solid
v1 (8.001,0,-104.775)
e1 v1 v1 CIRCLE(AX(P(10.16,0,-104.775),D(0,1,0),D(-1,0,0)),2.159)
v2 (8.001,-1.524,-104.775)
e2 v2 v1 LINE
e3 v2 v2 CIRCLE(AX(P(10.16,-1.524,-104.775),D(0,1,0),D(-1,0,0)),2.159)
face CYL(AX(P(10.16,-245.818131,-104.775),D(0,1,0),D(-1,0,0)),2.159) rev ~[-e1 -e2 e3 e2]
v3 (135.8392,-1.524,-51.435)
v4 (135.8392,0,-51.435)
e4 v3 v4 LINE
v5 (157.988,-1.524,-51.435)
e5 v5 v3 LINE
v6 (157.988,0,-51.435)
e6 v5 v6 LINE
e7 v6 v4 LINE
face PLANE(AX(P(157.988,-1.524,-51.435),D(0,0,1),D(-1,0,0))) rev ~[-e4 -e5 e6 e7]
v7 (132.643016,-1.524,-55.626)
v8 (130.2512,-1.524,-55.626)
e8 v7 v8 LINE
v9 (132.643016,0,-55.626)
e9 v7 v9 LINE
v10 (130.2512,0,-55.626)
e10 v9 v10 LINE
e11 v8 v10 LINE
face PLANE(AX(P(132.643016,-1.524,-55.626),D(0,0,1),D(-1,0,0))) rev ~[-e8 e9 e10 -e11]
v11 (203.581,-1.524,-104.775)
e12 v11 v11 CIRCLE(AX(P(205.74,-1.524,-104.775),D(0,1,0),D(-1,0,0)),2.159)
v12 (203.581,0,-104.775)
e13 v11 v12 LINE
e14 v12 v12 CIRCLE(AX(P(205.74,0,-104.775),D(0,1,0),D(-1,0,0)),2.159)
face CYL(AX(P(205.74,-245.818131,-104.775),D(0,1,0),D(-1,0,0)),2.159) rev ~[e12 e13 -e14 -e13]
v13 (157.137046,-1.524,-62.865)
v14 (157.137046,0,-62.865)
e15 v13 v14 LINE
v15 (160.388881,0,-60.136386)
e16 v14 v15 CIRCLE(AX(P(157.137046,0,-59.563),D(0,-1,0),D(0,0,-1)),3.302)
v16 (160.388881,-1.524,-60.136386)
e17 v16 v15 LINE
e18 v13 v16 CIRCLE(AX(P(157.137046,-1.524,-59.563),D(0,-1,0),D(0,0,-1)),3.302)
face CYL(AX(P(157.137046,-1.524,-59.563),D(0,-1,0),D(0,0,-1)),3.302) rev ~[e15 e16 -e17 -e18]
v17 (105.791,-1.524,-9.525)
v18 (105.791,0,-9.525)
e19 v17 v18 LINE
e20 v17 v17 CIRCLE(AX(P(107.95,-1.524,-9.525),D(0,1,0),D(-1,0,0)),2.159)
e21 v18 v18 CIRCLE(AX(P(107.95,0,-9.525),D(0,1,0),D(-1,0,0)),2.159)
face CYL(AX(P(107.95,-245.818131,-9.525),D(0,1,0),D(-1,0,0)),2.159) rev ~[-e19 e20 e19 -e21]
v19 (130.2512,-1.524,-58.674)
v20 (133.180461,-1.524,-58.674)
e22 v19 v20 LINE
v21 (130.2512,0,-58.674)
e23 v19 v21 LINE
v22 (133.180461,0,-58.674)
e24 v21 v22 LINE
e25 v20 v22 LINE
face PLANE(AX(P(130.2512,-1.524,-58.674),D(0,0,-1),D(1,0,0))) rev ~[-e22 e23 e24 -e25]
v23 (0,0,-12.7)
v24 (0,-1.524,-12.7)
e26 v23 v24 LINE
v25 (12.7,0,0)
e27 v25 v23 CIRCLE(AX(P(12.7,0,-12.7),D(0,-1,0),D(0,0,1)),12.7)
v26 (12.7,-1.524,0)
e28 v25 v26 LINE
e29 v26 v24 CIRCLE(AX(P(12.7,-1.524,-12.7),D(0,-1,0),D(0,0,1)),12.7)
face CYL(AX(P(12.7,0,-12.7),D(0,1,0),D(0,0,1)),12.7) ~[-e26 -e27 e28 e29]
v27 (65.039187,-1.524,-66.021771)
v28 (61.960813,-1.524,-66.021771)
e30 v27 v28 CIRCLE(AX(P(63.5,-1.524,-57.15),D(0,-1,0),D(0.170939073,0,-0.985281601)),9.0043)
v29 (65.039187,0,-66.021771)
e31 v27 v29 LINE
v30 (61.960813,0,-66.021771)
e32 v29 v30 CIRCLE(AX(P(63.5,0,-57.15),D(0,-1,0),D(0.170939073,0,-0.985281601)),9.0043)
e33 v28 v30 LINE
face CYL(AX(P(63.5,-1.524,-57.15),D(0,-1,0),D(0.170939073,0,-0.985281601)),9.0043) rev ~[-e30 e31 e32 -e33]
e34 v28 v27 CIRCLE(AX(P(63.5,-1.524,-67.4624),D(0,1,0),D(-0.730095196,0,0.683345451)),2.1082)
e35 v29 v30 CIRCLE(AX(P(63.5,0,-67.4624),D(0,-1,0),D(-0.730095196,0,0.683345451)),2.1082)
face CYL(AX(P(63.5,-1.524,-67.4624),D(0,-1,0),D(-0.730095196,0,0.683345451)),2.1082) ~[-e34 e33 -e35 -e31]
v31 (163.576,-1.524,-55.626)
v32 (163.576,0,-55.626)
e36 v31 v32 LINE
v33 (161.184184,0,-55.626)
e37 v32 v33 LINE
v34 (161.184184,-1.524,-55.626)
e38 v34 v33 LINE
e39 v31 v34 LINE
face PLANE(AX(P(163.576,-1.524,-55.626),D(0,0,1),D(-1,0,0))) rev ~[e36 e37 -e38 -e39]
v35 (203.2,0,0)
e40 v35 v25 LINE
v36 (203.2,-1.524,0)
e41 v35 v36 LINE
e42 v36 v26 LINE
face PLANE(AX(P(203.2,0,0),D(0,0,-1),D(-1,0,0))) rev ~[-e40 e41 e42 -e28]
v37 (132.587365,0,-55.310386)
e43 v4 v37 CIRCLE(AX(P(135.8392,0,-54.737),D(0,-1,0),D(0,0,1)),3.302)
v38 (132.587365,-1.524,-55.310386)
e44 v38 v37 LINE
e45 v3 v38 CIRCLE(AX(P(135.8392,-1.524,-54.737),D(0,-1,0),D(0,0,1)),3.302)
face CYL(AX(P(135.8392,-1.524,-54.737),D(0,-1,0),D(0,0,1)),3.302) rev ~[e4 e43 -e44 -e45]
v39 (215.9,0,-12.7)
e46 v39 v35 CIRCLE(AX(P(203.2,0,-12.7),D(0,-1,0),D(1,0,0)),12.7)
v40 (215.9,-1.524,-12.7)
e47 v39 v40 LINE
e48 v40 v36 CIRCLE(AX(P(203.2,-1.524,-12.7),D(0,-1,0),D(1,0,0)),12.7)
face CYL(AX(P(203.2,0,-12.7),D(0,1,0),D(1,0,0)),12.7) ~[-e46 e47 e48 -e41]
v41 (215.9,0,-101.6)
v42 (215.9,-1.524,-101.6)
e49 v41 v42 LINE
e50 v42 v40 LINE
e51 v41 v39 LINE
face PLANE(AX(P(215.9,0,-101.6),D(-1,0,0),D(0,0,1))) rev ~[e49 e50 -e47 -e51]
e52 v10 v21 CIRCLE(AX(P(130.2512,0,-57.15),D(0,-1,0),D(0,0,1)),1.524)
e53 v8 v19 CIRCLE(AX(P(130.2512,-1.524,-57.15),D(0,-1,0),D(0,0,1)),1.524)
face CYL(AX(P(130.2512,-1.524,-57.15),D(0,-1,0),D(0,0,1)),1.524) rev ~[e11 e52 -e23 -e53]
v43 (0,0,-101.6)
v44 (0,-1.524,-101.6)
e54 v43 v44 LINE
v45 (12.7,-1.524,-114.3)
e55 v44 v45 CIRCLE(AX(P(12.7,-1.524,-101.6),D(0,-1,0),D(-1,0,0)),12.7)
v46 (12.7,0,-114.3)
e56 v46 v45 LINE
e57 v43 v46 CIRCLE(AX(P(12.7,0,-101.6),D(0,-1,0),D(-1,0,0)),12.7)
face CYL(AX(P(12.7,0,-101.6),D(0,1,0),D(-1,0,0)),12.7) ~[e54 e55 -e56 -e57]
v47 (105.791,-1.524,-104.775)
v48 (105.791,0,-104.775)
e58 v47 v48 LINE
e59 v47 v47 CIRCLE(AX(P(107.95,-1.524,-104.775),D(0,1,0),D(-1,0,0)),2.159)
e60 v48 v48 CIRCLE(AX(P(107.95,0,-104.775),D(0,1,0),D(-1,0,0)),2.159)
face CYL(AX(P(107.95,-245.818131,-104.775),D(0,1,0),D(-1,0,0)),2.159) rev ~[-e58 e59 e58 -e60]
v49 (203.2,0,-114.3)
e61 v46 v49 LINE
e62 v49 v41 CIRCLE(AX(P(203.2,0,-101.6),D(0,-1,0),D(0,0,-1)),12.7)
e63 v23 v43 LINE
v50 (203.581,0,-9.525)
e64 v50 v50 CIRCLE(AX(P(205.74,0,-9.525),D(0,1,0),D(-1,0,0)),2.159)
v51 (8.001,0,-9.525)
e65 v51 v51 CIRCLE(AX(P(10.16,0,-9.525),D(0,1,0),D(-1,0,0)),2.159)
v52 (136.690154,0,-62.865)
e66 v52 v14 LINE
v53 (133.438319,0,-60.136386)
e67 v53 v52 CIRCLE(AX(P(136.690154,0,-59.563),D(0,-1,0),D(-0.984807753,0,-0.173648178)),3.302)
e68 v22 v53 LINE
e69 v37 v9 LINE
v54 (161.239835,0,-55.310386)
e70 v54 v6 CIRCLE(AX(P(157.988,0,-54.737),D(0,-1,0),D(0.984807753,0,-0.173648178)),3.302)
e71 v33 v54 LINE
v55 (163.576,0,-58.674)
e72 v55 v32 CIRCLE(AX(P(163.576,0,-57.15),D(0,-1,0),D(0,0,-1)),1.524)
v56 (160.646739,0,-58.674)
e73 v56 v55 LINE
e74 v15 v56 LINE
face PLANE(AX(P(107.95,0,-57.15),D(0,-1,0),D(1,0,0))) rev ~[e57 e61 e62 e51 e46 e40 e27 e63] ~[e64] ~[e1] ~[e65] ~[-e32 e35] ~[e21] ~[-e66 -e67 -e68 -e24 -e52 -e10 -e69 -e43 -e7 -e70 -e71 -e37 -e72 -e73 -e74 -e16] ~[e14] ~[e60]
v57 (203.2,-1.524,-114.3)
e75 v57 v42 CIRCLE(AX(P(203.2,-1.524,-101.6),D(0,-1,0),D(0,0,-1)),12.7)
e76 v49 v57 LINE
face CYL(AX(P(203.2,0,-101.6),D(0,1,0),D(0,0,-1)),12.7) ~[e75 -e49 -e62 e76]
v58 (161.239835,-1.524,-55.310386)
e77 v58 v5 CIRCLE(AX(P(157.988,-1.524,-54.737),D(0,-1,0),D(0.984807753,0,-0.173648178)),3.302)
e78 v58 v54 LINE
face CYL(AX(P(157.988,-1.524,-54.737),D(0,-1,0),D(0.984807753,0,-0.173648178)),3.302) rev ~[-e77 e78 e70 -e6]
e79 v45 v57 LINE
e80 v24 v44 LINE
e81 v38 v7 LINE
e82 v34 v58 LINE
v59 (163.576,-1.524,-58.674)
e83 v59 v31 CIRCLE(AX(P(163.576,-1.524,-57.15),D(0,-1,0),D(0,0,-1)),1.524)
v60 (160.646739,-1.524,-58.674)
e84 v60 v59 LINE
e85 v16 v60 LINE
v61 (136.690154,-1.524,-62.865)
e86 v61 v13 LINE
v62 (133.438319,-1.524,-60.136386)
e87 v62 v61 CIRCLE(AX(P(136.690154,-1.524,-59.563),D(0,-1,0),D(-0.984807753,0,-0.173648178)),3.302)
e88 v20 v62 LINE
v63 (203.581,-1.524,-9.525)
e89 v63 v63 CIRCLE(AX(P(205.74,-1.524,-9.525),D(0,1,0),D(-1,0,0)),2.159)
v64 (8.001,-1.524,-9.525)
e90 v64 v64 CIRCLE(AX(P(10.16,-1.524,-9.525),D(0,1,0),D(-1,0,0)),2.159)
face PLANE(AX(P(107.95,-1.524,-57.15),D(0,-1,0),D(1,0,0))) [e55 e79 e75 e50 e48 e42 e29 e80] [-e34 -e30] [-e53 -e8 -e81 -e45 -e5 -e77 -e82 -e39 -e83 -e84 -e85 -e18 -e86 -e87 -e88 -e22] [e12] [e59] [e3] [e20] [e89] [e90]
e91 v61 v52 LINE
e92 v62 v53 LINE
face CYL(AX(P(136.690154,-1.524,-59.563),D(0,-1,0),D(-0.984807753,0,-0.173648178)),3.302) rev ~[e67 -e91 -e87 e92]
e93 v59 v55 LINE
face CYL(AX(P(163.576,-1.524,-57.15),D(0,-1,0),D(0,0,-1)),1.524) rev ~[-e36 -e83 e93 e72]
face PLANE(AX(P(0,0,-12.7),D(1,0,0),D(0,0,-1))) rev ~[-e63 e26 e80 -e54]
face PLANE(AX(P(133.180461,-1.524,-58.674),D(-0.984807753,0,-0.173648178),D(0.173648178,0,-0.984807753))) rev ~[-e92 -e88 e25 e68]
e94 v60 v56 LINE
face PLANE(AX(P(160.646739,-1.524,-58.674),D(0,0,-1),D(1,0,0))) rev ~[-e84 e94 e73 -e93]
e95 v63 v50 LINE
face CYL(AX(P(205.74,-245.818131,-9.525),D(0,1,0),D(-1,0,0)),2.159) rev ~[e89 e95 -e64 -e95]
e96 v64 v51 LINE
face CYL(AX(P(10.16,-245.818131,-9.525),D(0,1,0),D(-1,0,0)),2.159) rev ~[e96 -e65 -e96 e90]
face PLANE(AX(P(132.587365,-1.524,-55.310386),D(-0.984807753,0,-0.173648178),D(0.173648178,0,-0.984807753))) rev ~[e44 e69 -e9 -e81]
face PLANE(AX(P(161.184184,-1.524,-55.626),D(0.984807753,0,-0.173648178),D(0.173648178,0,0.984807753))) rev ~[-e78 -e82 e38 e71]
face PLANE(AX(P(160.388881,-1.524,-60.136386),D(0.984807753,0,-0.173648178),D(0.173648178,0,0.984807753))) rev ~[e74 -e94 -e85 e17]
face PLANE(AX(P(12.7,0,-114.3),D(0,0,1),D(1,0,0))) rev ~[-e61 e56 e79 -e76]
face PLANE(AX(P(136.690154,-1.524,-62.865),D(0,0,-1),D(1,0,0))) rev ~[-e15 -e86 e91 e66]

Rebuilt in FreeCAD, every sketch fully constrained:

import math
import FreeCAD as App
import Part
import Sketcher

V = App.Vector
Q = App.Units.Quantity

doc = App.newDocument("Part")
body = doc.addObject("PartDesign::Body", "Body")

# Sketch on XZ plane
sketch1 = doc.addObject("Sketcher::SketchObject", "Sketch")
body.addObject(sketch1)
sketch1.AttachmentSupport = (doc.XZ_Plane, [""])
sketch1.MapMode = "FlatFace"
sketch1.addGeometry(Part.LineSegment(V(203.2, 0, 0), V(12.7, 0, 0)), False)
sketch1.addGeometry(Part.ArcOfCircle(Part.Circle(V(12.7, -12.7, 0), V(0, 0, 1), 12.7), math.radians(90), math.radians(180)), False)
sketch1.addGeometry(Part.LineSegment(V(0, -12.7, 0), V(0, -101.6, 0)), False)
sketch1.addGeometry(Part.ArcOfCircle(Part.Circle(V(12.7, -101.6, 0), V(0, 0, 1), 12.7), math.radians(180), math.radians(270)), False)
sketch1.addGeometry(Part.LineSegment(V(12.7, -114.3, 0), V(203.2, -114.3, 0)), False)
sketch1.addGeometry(Part.ArcOfCircle(Part.Circle(V(203.2, -101.6, 0), V(0, 0, 1), 12.7), math.radians(-90), math.radians(0)), False)
sketch1.addGeometry(Part.LineSegment(V(215.9, -101.6, 0), V(215.9, -12.7, 0)), False)
sketch1.addGeometry(Part.ArcOfCircle(Part.Circle(V(203.2, -12.7, 0), V(0, 0, 1), 12.7), math.radians(0), math.radians(90)), False)
sketch1.addConstraint(Sketcher.Constraint("Tangent", 0, 2, 1, 1))
sketch1.addConstraint(Sketcher.Constraint("Tangent", 1, 2, 2, 1))
sketch1.addConstraint(Sketcher.Constraint("Tangent", 2, 2, 3, 1))
sketch1.addConstraint(Sketcher.Constraint("Tangent", 3, 2, 4, 1))
sketch1.addConstraint(Sketcher.Constraint("Tangent", 4, 2, 5, 1))
sketch1.addConstraint(Sketcher.Constraint("Tangent", 5, 2, 6, 1))
sketch1.addConstraint(Sketcher.Constraint("Tangent", 6, 2, 7, 1))
sketch1.addConstraint(Sketcher.Constraint("Tangent", 7, 2, 0, 1))
sketch1.addConstraint(Sketcher.Constraint("Horizontal", 0))
sketch1.addConstraint(Sketcher.Constraint("Vertical", 2))
sketch1.addConstraint(Sketcher.Constraint("Horizontal", 4))
sketch1.addConstraint(Sketcher.Constraint("Vertical", 6))
sketch1.addConstraint(Sketcher.Constraint("Equal", 1, 3))
sketch1.addConstraint(Sketcher.Constraint("Equal", 3, 5))
sketch1.addConstraint(Sketcher.Constraint("Equal", 5, 7))
sketch1.addConstraint(Sketcher.Constraint("PointOnObject", 0, 2, -1))
sketch1.addConstraint(Sketcher.Constraint("PointOnObject", 1, 2, -2))
sketch1.addConstraint(Sketcher.Constraint("Radius", 1, Q("0.5 in")))
sketch1.addConstraint(Sketcher.Constraint("DistanceX", 0, 2, 0, 1, Q("7.5 in")))
sketch1.addConstraint(Sketcher.Constraint("DistanceY", 2, 2, 2, 1, Q("3.5 in")))
pad1 = doc.addObject("PartDesign::Pad", "Pad")
body.addObject(pad1)
pad1.Profile = sketch1
pad1.Length = Q("0.06 in")

# Sketch on XZ plane
sketch2 = doc.addObject("Sketcher::SketchObject", "Sketch001")
body.addObject(sketch2)
sketch2.AttachmentSupport = (doc.XZ_Plane, [""])
sketch2.MapMode = "FlatFace"
sketch2.AttachmentOffset = App.Placement(V(0, 0, 0.06 * 25.4), App.Rotation())
sketch2.addGeometry(Part.ArcOfCircle(Part.Circle(V(63.5, -67.4624, 0), V(0, 0, 1), 2.1082), math.radians(43.105625), math.radians(136.894375)), False)
sketch2.addGeometry(Part.ArcOfCircle(Part.Circle(V(63.5, -57.15, 0), V(0, 0, 1), 9.0043), math.radians(-80.157577), math.radians(260.157577)), False)
sketch2.addGeometry(Part.ArcOfCircle(Part.Circle(V(157.137046, -59.563, 0), V(0, 0, 1), 3.302), math.radians(-90), math.radians(-10)), False)
sketch2.addGeometry(Part.LineSegment(V(160.388881, -60.136386, 0), V(160.646739, -58.674, 0)), False)
sketch2.addGeometry(Part.LineSegment(V(160.646739, -58.674, 0), V(163.576, -58.674, 0)), False)
sketch2.addGeometry(Part.ArcOfCircle(Part.Circle(V(163.576, -57.15, 0), V(0, 0, 1), 1.524), math.radians(-90), math.radians(90)), False)
sketch2.addGeometry(Part.LineSegment(V(163.576, -55.626, 0), V(161.184184, -55.626, 0)), False)
sketch2.addGeometry(Part.LineSegment(V(161.184184, -55.626, 0), V(161.239835, -55.310386, 0)), False)
sketch2.addGeometry(Part.ArcOfCircle(Part.Circle(V(157.988, -54.737, 0), V(0, 0, 1), 3.302), math.radians(-10), math.radians(90)), False)
sketch2.addGeometry(Part.LineSegment(V(157.988, -51.435, 0), V(135.8392, -51.435, 0)), False)
sketch2.addGeometry(Part.ArcOfCircle(Part.Circle(V(135.8392, -54.737, 0), V(0, 0, 1), 3.302), math.radians(90), math.radians(190)), False)
sketch2.addGeometry(Part.LineSegment(V(132.587365, -55.310386, 0), V(132.643016, -55.626, 0)), False)
sketch2.addGeometry(Part.LineSegment(V(132.643016, -55.626, 0), V(130.2512, -55.626, 0)), False)
sketch2.addGeometry(Part.ArcOfCircle(Part.Circle(V(130.2512, -57.15, 0), V(0, 0, 1), 1.524), math.radians(90), math.radians(270)), False)
sketch2.addGeometry(Part.LineSegment(V(130.2512, -58.674, 0), V(133.180461, -58.674, 0)), False)
sketch2.addGeometry(Part.LineSegment(V(133.180461, -58.674, 0), V(133.438319, -60.136386, 0)), False)
sketch2.addGeometry(Part.ArcOfCircle(Part.Circle(V(136.690154, -59.563, 0), V(0, 0, 1), 3.302), math.radians(-170), math.radians(-90)), False)
sketch2.addGeometry(Part.LineSegment(V(136.690154, -62.865, 0), V(157.137046, -62.865, 0)), False)
sketch2.addConstraint(Sketcher.Constraint("Coincident", 0, 1, 1, 1))
sketch2.addConstraint(Sketcher.Constraint("Coincident", 1, 2, 0, 2))
sketch2.addConstraint(Sketcher.Constraint("Tangent", 2, 2, 3, 1))
sketch2.addConstraint(Sketcher.Constraint("Coincident", 3, 2, 4, 1))
sketch2.addConstraint(Sketcher.Constraint("Tangent", 4, 2, 5, 1))
sketch2.addConstraint(Sketcher.Constraint("Tangent", 5, 2, 6, 1))
sketch2.addConstraint(Sketcher.Constraint("Coincident", 6, 2, 7, 1))
sketch2.addConstraint(Sketcher.Constraint("Tangent", 7, 2, 8, 1))
sketch2.addConstraint(Sketcher.Constraint("Tangent", 8, 2, 9, 1))
sketch2.addConstraint(Sketcher.Constraint("Tangent", 9, 2, 10, 1))
sketch2.addConstraint(Sketcher.Constraint("Tangent", 10, 2, 11, 1))
sketch2.addConstraint(Sketcher.Constraint("Coincident", 11, 2, 12, 1))
sketch2.addConstraint(Sketcher.Constraint("Tangent", 12, 2, 13, 1))
sketch2.addConstraint(Sketcher.Constraint("Tangent", 13, 2, 14, 1))
sketch2.addConstraint(Sketcher.Constraint("Coincident", 14, 2, 15, 1))
sketch2.addConstraint(Sketcher.Constraint("Tangent", 15, 2, 16, 1))
sketch2.addConstraint(Sketcher.Constraint("Tangent", 16, 2, 17, 1))
sketch2.addConstraint(Sketcher.Constraint("Tangent", 17, 2, 2, 1))
sketch2.addConstraint(Sketcher.Constraint("Horizontal", 4))
sketch2.addConstraint(Sketcher.Constraint("Horizontal", 6))
sketch2.addConstraint(Sketcher.Constraint("Horizontal", 9))
sketch2.addConstraint(Sketcher.Constraint("Horizontal", 12))
sketch2.addConstraint(Sketcher.Constraint("Horizontal", 14))
sketch2.addConstraint(Sketcher.Constraint("Horizontal", 17))
sketch2.addConstraint(Sketcher.Constraint("Equal", 2, 8))
sketch2.addConstraint(Sketcher.Constraint("Equal", 8, 10))
sketch2.addConstraint(Sketcher.Constraint("Equal", 5, 13))
sketch2.addConstraint(Sketcher.Constraint("Equal", 10, 16))
sketch2.addConstraint(Sketcher.Constraint("Parallel", 3, 7))
sketch2.addConstraint(Sketcher.Constraint("Parallel", 11, 15))
sketch2.addConstraint(Sketcher.Constraint("Horizontal", 1, 3, 5, 3))
sketch2.addConstraint(Sketcher.Constraint("Horizontal", 5, 3, 13, 3))
sketch2.addConstraint(Sketcher.Constraint("Horizontal", 0, 1, 1, 2))
sketch2.addConstraint(Sketcher.Constraint("Horizontal", 7, 2, 10, 2))
sketch2.addConstraint(Sketcher.Constraint("Equal", 6, 12))
sketch2.addConstraint(Sketcher.Constraint("Equal", 4, 14))
sketch2.addConstraint(Sketcher.Constraint("Radius", 2, Q("0.13 in")))
sketch2.addConstraint(Sketcher.Constraint("Radius", 5, Q("0.06 in")))
sketch2.addConstraint(Sketcher.Constraint("Angle", 3, Q("80 deg")))
sketch2.addConstraint(Sketcher.Constraint("Radius", 0, Q("0.083 in")))
sketch2.addConstraint(Sketcher.Constraint("DistanceX", -1, 1, 0, 3, Q("2.5 in")))
sketch2.addConstraint(Sketcher.Constraint("Radius", 1, Q("0.3545 in")))
sketch2.addConstraint(Sketcher.Constraint("DistanceX", 9, 2, 9, 1, Q("0.872 in")))
sketch2.addConstraint(Sketcher.Constraint("DistanceY", 1, 3, -1, 1, Q("2.25 in")))
sketch2.addConstraint(Sketcher.Constraint("DistanceX", -1, 1, 5, 3, Q("6.44 in")))
sketch2.addConstraint(Sketcher.Constraint("DistanceX", -1, 1, 8, 3, Q("6.22 in")))
sketch2.addConstraint(Sketcher.Constraint("DistanceY", 2, 3, 8, 3, Q("0.19 in")))
sketch2.addConstraint(Sketcher.Constraint("DistanceY", 0, 3, -1, 1, Q("2.656 in")))
sketch2.addConstraint(Sketcher.Constraint("DistanceY", 2, 3, -1, 1, Q("2.345 in")))
sketch2.addConstraint(Sketcher.Constraint("DistanceX", 4, 1, 4, 2, Q("2.929261 mm")))
pocket1 = doc.addObject("PartDesign::Pocket", "Pocket")
body.addObject(pocket1)
pocket1.Profile = sketch2
pocket1.Type = "ThroughAll"

# Sketch on XZ plane
sketch3 = doc.addObject("Sketcher::SketchObject", "Sketch002")
body.addObject(sketch3)
sketch3.AttachmentSupport = (doc.XZ_Plane, [""])
sketch3.MapMode = "FlatFace"
sketch3.AttachmentOffset = App.Placement(V(0, 0, 0.06 * 25.4), App.Rotation())
sketch3.addGeometry(Part.Circle(V(10.16, -9.525, 0), V(0, 0, 1), 2.159), False)
sketch3.addGeometry(Part.Circle(V(107.95, -9.525, 0), V(0, 0, 1), 2.159), False)
sketch3.addGeometry(Part.Circle(V(205.74, -9.525, 0), V(0, 0, 1), 2.159), False)
sketch3.addGeometry(Part.Circle(V(205.74, -104.775, 0), V(0, 0, 1), 2.159), False)
sketch3.addGeometry(Part.Circle(V(107.95, -104.775, 0), V(0, 0, 1), 2.159), False)
sketch3.addGeometry(Part.Circle(V(10.16, -104.775, 0), V(0, 0, 1), 2.159), False)
sketch3.addConstraint(Sketcher.Constraint("Equal", 0, 1))
sketch3.addConstraint(Sketcher.Constraint("Equal", 1, 2))
sketch3.addConstraint(Sketcher.Constraint("Equal", 2, 3))
sketch3.addConstraint(Sketcher.Constraint("Equal", 3, 4))
sketch3.addConstraint(Sketcher.Constraint("Equal", 4, 5))
sketch3.addConstraint(Sketcher.Constraint("Horizontal", 0, 3, 1, 3))
sketch3.addConstraint(Sketcher.Constraint("Horizontal", 1, 3, 2, 3))
sketch3.addConstraint(Sketcher.Constraint("Horizontal", 3, 3, 4, 3))
sketch3.addConstraint(Sketcher.Constraint("Horizontal", 4, 3, 5, 3))
sketch3.addConstraint(Sketcher.Constraint("Vertical", 2, 3, 3, 3))
sketch3.addConstraint(Sketcher.Constraint("Vertical", 1, 3, 4, 3))
sketch3.addConstraint(Sketcher.Constraint("Vertical", 0, 3, 5, 3))
sketch3.addConstraint(Sketcher.Constraint("Diameter", 0, Q("0.17 in")))
sketch3.addConstraint(Sketcher.Constraint("DistanceX", -1, 1, 0, 3, Q("0.4 in")))
sketch3.addConstraint(Sketcher.Constraint("DistanceX", -1, 1, 2, 3, Q("8.1 in")))
sketch3.addConstraint(Sketcher.Constraint("DistanceX", -1, 1, 1, 3, Q("4.25 in")))
sketch3.addConstraint(Sketcher.Constraint("DistanceY", 3, 3, 2, 3, Q("3.75 in")))
sketch3.addConstraint(Sketcher.Constraint("DistanceY", 0, 3, -1, 1, Q("0.375 in")))
doc.recompute()
hole = doc.addObject("PartDesign::Hole", "Hole")
body.addObject(hole)
hole.Profile = sketch3
hole.ThreadType = "None"
hole.Diameter = Q("0.17 in")
hole.DepthType = "ThroughAll"

doc.recompute()
